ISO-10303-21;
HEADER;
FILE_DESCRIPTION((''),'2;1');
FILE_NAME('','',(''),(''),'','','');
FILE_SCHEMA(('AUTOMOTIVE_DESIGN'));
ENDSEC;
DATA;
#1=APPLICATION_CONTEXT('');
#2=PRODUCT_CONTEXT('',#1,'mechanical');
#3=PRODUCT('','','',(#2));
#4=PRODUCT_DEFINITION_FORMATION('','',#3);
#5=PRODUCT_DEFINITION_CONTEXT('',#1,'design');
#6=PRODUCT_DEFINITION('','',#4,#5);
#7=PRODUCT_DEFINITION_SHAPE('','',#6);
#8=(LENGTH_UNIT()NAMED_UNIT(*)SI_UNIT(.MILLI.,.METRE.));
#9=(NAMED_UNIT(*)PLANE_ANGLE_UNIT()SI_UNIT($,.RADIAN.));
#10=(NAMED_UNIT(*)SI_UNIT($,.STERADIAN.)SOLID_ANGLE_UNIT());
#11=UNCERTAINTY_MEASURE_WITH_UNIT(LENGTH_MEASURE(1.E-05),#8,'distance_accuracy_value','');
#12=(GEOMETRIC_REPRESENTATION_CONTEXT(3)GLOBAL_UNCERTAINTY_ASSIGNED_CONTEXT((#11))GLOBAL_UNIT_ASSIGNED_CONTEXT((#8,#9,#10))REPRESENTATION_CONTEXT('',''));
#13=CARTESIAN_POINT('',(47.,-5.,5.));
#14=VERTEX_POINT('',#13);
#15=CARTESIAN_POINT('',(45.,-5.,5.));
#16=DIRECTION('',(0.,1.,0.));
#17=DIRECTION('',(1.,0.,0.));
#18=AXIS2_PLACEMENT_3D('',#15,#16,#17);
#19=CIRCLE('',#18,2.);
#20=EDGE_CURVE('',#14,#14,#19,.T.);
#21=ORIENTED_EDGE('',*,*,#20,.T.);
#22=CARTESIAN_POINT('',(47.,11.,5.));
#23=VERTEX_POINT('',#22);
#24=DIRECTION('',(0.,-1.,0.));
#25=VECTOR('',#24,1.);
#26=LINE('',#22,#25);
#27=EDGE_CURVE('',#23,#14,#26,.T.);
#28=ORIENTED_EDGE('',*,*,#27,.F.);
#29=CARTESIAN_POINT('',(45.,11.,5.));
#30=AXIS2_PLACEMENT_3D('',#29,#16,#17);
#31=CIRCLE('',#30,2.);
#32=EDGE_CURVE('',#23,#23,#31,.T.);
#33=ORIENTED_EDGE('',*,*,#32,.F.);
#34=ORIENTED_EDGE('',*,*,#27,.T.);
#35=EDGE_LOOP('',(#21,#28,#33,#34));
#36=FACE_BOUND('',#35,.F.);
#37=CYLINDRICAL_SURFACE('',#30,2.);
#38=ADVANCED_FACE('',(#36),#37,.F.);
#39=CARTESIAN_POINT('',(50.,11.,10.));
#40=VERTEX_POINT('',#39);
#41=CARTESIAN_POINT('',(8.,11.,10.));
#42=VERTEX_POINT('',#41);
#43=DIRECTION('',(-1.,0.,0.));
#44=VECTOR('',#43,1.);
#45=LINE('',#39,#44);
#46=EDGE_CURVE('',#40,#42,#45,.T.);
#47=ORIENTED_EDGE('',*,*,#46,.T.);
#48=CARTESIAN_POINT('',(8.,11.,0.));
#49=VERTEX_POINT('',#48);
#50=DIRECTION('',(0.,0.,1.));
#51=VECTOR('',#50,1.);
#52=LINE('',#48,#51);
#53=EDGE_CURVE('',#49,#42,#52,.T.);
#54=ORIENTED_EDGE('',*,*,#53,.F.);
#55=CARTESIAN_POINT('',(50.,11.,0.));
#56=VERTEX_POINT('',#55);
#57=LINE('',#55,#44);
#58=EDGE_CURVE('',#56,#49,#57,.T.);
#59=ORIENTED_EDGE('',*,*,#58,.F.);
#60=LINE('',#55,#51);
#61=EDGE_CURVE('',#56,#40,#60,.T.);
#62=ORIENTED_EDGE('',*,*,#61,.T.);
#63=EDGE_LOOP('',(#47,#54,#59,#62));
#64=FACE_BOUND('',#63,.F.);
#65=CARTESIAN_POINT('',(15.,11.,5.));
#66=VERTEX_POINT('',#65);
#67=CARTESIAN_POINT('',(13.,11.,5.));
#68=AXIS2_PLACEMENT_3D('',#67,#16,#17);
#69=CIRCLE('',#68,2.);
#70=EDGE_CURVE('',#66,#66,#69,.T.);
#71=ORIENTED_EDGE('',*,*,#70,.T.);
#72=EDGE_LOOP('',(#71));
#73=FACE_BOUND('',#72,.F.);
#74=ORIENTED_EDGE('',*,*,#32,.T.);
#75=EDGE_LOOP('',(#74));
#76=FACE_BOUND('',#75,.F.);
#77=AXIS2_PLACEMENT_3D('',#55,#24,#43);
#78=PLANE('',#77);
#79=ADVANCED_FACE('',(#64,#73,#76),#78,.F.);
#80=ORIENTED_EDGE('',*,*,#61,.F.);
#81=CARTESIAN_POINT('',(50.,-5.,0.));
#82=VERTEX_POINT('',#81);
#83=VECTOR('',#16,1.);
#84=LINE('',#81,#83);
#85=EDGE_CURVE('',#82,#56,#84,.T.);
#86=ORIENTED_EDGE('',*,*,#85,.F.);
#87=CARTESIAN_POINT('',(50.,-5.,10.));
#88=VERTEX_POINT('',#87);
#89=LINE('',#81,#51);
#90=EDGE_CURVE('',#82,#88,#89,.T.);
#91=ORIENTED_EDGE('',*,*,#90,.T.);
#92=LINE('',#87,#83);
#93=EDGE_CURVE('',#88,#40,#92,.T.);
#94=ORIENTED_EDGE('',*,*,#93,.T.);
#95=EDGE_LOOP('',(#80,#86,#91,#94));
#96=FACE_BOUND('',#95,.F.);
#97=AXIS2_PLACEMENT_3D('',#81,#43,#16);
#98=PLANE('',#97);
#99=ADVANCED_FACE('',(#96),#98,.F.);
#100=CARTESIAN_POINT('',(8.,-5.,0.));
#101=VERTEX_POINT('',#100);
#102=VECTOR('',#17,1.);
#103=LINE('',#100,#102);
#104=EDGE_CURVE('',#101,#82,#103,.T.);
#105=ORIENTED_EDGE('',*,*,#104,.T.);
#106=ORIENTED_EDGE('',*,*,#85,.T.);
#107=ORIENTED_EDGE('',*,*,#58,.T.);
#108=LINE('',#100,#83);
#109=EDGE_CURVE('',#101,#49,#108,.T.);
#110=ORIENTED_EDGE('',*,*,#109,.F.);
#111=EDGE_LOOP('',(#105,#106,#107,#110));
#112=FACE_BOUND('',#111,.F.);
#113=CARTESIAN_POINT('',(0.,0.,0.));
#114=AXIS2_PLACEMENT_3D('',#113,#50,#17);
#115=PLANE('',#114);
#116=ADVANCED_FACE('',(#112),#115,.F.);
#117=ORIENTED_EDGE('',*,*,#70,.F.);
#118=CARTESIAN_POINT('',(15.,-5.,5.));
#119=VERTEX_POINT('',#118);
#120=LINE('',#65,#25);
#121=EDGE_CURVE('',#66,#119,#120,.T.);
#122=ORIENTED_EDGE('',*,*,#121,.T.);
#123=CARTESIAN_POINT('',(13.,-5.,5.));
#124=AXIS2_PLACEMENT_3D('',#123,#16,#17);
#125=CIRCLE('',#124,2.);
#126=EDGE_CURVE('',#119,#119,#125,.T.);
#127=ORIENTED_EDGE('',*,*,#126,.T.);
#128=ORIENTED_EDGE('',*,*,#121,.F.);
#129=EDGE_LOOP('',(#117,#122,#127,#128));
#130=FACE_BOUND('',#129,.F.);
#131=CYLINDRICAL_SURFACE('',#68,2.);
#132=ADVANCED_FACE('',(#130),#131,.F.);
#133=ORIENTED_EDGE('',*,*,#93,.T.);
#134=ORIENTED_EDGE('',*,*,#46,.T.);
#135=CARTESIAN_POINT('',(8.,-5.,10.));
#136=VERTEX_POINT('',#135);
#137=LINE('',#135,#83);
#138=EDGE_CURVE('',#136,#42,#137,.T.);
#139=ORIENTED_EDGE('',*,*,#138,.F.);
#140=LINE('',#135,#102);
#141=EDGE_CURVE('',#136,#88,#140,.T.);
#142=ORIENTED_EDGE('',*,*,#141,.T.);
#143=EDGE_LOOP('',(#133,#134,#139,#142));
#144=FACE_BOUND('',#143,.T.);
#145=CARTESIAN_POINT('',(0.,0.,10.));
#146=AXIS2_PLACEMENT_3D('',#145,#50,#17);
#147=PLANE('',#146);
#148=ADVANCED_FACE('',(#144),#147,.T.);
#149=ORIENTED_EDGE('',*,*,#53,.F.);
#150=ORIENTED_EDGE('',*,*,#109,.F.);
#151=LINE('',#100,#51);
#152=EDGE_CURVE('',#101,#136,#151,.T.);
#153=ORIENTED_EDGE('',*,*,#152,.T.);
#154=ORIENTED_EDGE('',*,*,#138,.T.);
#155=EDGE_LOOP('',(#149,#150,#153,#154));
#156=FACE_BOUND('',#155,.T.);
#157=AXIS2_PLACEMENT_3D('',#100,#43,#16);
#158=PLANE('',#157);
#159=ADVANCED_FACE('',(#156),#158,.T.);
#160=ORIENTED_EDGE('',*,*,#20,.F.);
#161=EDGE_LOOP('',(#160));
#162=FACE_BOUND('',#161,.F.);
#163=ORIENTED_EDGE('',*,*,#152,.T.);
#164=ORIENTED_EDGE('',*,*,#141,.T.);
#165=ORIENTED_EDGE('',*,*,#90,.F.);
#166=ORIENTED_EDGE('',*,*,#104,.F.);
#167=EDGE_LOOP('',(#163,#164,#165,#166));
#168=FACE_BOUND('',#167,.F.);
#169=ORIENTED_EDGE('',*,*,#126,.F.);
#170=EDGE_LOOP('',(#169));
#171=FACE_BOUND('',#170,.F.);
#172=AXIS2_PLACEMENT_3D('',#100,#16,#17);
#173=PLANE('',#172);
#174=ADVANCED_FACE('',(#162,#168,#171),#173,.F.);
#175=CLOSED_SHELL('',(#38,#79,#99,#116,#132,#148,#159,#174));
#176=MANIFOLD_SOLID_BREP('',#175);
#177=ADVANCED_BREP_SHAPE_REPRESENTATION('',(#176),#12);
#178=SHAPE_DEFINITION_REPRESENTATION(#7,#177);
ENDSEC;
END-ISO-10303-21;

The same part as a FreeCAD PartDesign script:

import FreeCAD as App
import Part
import Sketcher
from FreeCAD import Vector


def add_polygon(sketch, points):
    """Adds a closed chain of lines whose ends are joined by coincident constraints."""
    first, n = sketch.GeometryCount, len(points)
    for a, b in zip(points, points[1:] + points[:1]):
        sketch.addGeometry(Part.LineSegment(App.Vector(*a, 0), App.Vector(*b, 0)), False)
    for i in range(n):
        sketch.addConstraint(Sketcher.Constraint("Coincident", first + i, 2, first + (i + 1) % n, 1))

doc = App.newDocument("Part")
body = doc.addObject("PartDesign::Body", "Body")

sketch1 = body.newObject("Sketcher::SketchObject", "Sketch")
sketch1.AttachmentSupport = (doc.getObject("XY_Plane"), [""])
sketch1.MapMode = "FlatFace"
add_polygon(sketch1, [(8, -5), (50, -5), (50, 11), (8, 11)])
sketch1.addConstraint([
    Sketcher.Constraint("Horizontal", 0),
    Sketcher.Constraint("Vertical", 1),
    Sketcher.Constraint("Horizontal", 2),
    Sketcher.Constraint("Vertical", 3),
    Sketcher.Constraint("DistanceX", 0, 1, 0, 2, 42.0),
    Sketcher.Constraint("DistanceY", 1, 1, 1, 2, 16.0),
    Sketcher.Constraint("DistanceX", -1, 1, 0, 2, 50.0),
    Sketcher.Constraint("DistanceY", 0, 2, -1, 1, 5.0),
])
pad1 = body.newObject("PartDesign::Pad", "Pad")
pad1.Profile = sketch1
pad1.Length = 10

sketch2 = body.newObject("Sketcher::SketchObject", "Sketch001")
sketch2.AttachmentSupport = (doc.getObject("XZ_Plane"), [""])
sketch2.MapMode = "FlatFace"
sketch2.AttachmentOffset = App.Placement(Vector(0, 0, -11), App.Rotation())
sketch2.addGeometry([
    Part.Circle(Vector(13, 5, 0), Vector(0, 0, 1), 2),
    Part.Circle(Vector(45, 5, 0), Vector(0, 0, 1), 2),
], False)
sketch2.addConstraint([
    Sketcher.Constraint("Equal", 0, 1),
    Sketcher.Constraint("Horizontal", 0, 3, 1, 3),
    Sketcher.Constraint("Diameter", 0, 4.0),
    Sketcher.Constraint("DistanceY", -1, 1, 0, 3, 5.0),
    Sketcher.Constraint("DistanceX", -1, 1, 0, 3, 13.0),
    Sketcher.Constraint("DistanceX", -1, 1, 1, 3, 45.0),
])
pocket1 = body.newObject("PartDesign::Pocket", "Pocket")
pocket1.Profile = sketch2
pocket1.Length = 50
pocket1.Reversed = True

doc.recompute()
